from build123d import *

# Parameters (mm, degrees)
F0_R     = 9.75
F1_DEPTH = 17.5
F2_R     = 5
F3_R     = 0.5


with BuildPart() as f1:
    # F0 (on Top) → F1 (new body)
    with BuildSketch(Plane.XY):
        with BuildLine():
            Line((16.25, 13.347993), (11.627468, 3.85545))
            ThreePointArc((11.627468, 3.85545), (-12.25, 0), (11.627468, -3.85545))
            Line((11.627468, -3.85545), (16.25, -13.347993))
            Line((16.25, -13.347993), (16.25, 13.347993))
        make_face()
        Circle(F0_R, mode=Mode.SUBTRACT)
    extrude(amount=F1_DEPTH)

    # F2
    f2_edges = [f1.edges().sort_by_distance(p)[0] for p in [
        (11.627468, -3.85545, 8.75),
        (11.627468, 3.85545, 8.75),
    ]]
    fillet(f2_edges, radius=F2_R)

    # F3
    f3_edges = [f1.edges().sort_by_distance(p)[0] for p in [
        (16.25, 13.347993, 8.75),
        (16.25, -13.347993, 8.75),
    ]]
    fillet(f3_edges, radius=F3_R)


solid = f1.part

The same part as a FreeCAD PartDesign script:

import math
import FreeCAD as App
import Part
import Sketcher

V = App.Vector


def edges_at(feature, points):
    """Names of the edges that pass closest to the given points."""
    edges = feature.Shape.Edges
    near = lambda p: min(range(len(edges)), key=lambda i: edges[i].distToShape(Part.Vertex(*p))[0])
    return sorted({f"Edge{near(p) + 1}" for p in points})

doc = App.newDocument("Part")
body = doc.addObject("PartDesign::Body", "Body")

# Sketch on XY plane
sketch1 = body.newObject("Sketcher::SketchObject", "Sketch")
sketch1.AttachmentSupport = (doc.getObject("XY_Plane"), [""])
sketch1.MapMode = "FlatFace"
sketch1.addGeometry([
    Part.LineSegment(V(16.25, 13.347993, 0), V(11.627468, 3.85545, 0)),  # 0
    Part.ArcOfCircle(Part.Circle(V(0, 0, 0), V(0, 0, 1), 12.25), math.radians(18.344552), math.radians(341.655448)),  # 1
    Part.LineSegment(V(11.627468, -3.85545, 0), V(16.25, -13.347993, 0)),  # 2
    Part.LineSegment(V(16.25, -13.347993, 0), V(16.25, 13.347993, 0)),  # 3
    Part.Circle(V(0, 0, 0), V(0, 0, 1), 9.75),  # 4
], False)
sketch1.addConstraint([
    Sketcher.Constraint("Coincident", 0, 2, 1, 1),
    Sketcher.Constraint("Coincident", 1, 2, 2, 1),
    Sketcher.Constraint("Coincident", 2, 2, 3, 1),
    Sketcher.Constraint("Coincident", 3, 2, 0, 1),
    Sketcher.Constraint("Vertical", 3),
    Sketcher.Constraint("Coincident", 1, 3, -1, 1),
    Sketcher.Constraint("Coincident", 4, 3, -1, 1),
    Sketcher.Constraint("Vertical", 0, 2, 1, 2),
    Sketcher.Constraint("Equal", 0, 2),
    Sketcher.Constraint("Diameter", 4, 19.5),
    Sketcher.Constraint("Radius", 1, 12.25),
    Sketcher.Constraint("DistanceX", -1, 1, 2, 2, 16.25),
    Sketcher.Constraint("DistanceY", 1, 2, 0, 2, 7.7109),
    Sketcher.Constraint("DistanceY", 3, 1, 3, 2, 26.695986),
])
pad1 = body.newObject("PartDesign::Pad", "Pad")
pad1.Profile = sketch1
pad1.Length = 17.5
doc.recompute()

fillet = body.newObject("PartDesign::Fillet", "Fillet")
fillet.Base = (pad1, edges_at(pad1, [(11.627, -3.855, 8.75), (11.627, 3.855, 8.75)]))
fillet.Radius = 5
doc.recompute()

fillet2 = body.newObject("PartDesign::Fillet", "Fillet001")
fillet2.Base = (fillet, edges_at(fillet, [(16.25, 13.348, 8.75), (16.25, -13.348, 8.75)]))
fillet2.Radius = 0.5

doc.recompute()
